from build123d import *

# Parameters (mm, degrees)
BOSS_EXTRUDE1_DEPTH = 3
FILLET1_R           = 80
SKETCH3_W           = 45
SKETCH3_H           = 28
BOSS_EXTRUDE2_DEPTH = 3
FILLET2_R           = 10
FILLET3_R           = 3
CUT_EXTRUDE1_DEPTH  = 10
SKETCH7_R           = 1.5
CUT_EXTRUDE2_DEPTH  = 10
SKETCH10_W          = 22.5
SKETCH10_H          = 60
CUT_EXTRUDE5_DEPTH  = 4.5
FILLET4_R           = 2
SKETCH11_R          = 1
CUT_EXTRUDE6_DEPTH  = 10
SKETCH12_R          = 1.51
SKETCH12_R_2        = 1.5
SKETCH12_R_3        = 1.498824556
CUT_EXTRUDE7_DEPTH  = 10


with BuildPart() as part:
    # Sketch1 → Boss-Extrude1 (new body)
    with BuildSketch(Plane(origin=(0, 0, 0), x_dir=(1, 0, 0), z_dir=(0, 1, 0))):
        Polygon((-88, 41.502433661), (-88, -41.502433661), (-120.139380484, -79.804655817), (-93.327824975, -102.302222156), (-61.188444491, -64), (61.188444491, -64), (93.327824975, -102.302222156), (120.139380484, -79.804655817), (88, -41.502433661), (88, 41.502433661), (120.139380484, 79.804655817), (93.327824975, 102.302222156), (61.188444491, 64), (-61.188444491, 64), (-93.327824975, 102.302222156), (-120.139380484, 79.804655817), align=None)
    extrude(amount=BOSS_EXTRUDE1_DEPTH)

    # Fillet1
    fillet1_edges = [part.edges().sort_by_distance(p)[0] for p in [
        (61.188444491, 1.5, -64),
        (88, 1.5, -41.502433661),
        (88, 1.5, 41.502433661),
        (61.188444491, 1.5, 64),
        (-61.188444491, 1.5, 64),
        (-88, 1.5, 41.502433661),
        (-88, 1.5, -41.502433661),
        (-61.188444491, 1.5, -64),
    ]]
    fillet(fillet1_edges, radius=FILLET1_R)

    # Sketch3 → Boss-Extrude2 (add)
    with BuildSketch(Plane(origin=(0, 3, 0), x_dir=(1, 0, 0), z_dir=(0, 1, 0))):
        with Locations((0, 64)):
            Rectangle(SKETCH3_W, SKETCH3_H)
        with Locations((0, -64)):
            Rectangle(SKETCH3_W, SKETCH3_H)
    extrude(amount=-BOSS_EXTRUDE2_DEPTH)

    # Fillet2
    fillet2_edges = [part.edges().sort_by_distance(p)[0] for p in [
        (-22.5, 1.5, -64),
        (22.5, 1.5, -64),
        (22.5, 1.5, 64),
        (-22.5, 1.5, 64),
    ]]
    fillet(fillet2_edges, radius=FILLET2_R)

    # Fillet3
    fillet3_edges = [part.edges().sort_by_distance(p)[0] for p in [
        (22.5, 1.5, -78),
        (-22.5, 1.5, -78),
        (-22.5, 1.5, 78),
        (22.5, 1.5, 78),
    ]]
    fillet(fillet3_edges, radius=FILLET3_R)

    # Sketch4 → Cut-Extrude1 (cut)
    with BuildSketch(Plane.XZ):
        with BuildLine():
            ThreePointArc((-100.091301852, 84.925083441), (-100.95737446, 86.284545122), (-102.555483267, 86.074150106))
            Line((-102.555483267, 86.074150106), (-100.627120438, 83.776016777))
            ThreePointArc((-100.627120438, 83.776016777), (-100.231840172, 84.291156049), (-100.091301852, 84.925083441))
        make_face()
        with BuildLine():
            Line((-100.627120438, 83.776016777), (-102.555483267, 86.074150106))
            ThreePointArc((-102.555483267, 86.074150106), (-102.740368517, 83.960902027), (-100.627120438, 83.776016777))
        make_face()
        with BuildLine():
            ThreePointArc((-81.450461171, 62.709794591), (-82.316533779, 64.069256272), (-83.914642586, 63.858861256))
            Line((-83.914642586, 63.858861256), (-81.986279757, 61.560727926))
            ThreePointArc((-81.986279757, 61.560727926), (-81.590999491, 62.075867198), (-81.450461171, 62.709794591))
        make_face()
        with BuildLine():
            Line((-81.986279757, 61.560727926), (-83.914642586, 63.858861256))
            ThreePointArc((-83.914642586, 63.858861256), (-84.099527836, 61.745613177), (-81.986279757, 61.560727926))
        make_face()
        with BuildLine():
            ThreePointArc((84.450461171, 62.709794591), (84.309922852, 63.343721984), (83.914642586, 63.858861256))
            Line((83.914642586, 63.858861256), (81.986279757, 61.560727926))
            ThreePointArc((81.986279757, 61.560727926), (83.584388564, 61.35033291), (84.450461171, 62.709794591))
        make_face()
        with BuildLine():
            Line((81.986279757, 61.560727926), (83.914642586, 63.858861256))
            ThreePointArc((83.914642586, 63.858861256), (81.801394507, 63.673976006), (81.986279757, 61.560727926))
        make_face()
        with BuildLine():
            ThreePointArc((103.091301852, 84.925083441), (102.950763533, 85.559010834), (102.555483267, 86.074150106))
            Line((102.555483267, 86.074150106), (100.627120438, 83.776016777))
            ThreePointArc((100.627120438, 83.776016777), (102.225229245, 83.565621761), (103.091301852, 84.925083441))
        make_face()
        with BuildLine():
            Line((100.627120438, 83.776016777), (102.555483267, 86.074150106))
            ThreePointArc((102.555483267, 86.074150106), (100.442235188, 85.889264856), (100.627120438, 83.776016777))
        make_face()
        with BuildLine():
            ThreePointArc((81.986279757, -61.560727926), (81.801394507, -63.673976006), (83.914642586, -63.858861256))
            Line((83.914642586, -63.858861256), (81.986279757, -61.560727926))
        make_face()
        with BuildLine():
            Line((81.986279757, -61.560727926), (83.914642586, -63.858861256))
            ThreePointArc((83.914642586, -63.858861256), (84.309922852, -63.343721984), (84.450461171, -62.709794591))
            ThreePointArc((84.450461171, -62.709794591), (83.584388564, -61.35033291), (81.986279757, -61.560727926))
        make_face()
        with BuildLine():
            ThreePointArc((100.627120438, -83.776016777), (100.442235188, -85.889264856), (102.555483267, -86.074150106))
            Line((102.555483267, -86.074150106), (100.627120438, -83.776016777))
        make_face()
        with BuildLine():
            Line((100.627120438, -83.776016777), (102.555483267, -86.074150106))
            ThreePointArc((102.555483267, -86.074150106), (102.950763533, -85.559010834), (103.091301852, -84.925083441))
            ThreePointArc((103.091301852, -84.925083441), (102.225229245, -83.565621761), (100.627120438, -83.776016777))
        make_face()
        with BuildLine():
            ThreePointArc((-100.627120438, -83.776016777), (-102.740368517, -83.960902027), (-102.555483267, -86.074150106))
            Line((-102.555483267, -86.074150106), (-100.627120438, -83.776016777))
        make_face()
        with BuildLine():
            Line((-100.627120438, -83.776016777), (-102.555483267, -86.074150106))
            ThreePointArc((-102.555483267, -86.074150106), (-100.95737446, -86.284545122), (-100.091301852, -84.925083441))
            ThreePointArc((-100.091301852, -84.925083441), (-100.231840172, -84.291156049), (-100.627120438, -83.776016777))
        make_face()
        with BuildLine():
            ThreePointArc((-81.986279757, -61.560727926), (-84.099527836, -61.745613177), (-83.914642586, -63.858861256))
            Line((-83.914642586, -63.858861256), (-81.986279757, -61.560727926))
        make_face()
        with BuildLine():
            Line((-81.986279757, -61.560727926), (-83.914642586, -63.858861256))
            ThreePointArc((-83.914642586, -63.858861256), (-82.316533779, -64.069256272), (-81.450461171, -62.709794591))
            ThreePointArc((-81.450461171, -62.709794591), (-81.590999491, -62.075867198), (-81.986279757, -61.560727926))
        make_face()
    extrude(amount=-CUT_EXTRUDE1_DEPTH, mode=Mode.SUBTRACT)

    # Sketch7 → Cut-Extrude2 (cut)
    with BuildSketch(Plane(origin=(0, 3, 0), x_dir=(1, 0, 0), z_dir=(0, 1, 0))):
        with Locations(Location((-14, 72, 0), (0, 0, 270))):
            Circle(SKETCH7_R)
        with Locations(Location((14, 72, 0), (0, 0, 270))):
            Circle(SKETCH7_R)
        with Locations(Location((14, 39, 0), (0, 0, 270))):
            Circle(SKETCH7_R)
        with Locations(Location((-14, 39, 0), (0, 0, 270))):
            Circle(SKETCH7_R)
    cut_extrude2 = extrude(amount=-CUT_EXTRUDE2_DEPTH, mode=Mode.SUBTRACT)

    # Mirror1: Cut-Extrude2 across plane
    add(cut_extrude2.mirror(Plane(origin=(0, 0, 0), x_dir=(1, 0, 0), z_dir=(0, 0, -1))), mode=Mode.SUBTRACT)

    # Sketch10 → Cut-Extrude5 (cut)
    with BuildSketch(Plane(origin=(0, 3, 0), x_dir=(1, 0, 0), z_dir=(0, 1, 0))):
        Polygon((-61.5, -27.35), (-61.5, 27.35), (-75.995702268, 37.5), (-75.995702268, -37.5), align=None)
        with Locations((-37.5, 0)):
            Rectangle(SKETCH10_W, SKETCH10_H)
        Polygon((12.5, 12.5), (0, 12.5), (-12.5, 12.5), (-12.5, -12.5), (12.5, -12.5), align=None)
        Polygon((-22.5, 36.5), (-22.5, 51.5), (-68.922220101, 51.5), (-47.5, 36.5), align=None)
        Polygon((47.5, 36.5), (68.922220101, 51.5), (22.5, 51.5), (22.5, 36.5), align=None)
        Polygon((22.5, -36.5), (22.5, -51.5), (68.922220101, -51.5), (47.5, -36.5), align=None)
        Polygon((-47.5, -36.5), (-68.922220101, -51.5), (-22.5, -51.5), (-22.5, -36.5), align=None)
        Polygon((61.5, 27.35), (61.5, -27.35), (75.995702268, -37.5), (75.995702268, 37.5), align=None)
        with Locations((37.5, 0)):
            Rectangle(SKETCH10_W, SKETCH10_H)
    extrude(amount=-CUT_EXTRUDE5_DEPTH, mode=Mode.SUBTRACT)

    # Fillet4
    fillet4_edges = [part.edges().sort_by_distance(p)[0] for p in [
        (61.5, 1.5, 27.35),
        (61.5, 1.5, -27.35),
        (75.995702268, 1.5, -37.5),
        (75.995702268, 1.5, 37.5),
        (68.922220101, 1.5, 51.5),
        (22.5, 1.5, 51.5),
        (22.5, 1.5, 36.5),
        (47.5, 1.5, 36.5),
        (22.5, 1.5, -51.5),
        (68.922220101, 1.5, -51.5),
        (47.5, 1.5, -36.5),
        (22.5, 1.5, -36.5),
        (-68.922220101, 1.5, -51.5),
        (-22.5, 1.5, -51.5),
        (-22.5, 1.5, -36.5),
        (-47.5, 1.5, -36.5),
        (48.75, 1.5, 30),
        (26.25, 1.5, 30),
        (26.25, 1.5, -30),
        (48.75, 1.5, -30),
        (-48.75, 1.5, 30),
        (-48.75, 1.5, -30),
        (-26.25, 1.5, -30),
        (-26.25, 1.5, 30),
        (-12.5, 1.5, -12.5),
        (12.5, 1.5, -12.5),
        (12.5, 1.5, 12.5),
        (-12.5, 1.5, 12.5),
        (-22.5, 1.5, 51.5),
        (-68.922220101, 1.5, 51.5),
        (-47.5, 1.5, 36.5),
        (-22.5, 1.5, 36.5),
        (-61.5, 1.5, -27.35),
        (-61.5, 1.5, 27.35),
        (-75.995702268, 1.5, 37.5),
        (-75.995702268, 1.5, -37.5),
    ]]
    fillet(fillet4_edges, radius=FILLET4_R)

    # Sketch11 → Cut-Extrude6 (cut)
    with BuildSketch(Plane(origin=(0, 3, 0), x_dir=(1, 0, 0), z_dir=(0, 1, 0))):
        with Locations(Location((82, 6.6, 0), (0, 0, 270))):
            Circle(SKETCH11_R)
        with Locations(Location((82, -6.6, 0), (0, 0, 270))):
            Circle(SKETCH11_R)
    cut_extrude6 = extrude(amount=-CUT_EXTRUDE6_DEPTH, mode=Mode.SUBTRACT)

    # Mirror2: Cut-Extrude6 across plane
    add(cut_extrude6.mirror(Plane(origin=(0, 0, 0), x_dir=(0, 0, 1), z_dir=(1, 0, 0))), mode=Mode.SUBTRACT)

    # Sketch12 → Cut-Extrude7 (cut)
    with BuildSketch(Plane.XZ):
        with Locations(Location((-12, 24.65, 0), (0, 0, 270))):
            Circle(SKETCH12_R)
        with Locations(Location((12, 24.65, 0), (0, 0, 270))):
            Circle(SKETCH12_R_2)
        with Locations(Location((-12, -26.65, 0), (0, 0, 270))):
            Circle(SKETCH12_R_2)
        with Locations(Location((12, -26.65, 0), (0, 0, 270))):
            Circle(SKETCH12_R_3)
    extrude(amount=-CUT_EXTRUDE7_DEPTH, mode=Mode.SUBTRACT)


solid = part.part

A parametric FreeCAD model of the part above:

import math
import FreeCAD as App
import Part
import Sketcher
from FreeCAD import Vector
Q = App.Units.Quantity


def edges_at(feature, points):
    """Names of the edges that pass closest to the given points."""
    edges = feature.Shape.Edges
    near = lambda p: min(range(len(edges)), key=lambda i: edges[i].distToShape(Part.Vertex(*p))[0])
    return sorted({f"Edge{near(p) + 1}" for p in points})


def add_polygon(sketch, points):
    """Adds a closed chain of lines whose ends are joined by coincident constraints."""
    first, n = sketch.GeometryCount, len(points)
    for a, b in zip(points, points[1:] + points[:1]):
        sketch.addGeometry(Part.LineSegment(App.Vector(*a, 0), App.Vector(*b, 0)), False)
    for i in range(n):
        sketch.addConstraint(Sketcher.Constraint("Coincident", first + i, 2, first + (i + 1) % n, 1))

doc = App.newDocument("Part")
body = doc.addObject("PartDesign::Body", "Body")

# Sketch on XZ plane
sketch1 = doc.addObject("Sketcher::SketchObject", "Sketch")
body.addObject(sketch1)
sketch1.AttachmentSupport = (doc.XZ_Plane, [""])
sketch1.MapMode = "FlatFace"
add_polygon(sketch1, [(-88, -42), (-88, 42), (-120, 80), (-93, 102), (-61, 64), (61, 64), (93, 102), (120, 80), (88, 42), (88, -42), (120, -80), (93, -102), (61, -64), (-61, -64), (-93, -102), (-120, -80)])  # lines 0-15
sketch1.addConstraint(Sketcher.Constraint("Vertical", 0))
sketch1.addConstraint(Sketcher.Constraint("Horizontal", 4))
sketch1.addConstraint(Sketcher.Constraint("Vertical", 8))
sketch1.addConstraint(Sketcher.Constraint("Horizontal", 12))
sketch1.addConstraint(Sketcher.Constraint("Symmetric", 0, 2, 8, 2, -1, 1))
sketch1.addConstraint(Sketcher.Constraint("Symmetric", 1, 2, 9, 2, -1, 1))
sketch1.addConstraint(Sketcher.Constraint("Symmetric", 2, 2, 10, 2, -1, 1))
sketch1.addConstraint(Sketcher.Constraint("Symmetric", 3, 2, 11, 2, -1, 1))
sketch1.addConstraint(Sketcher.Constraint("Symmetric", 5, 2, 13, 2, -1, 1))
sketch1.addConstraint(Sketcher.Constraint("Symmetric", 6, 2, 14, 2, -1, 1))
sketch1.addConstraint(Sketcher.Constraint("Symmetric", 2, 2, 5, 2, -2))
sketch1.addConstraint(Sketcher.Constraint("Symmetric", 1, 2, 6, 2, -2))
sketch1.addConstraint(Sketcher.Constraint("Perpendicular", 1, 2))
sketch1.addConstraint(Sketcher.Constraint("Perpendicular", 2, 3))
sketch1.addConstraint(Sketcher.Constraint("Perpendicular", 5, 6))
sketch1.addConstraint(Sketcher.Constraint("Perpendicular", 6, 7))
sketch1.addConstraint(Sketcher.Constraint("Parallel", 7, 13))
sketch1.addConstraint(Sketcher.Constraint("Perpendicular", 14, 15))
sketch1.addConstraint(Sketcher.Constraint("Equal", 1, 3))
sketch1.addConstraint(Sketcher.Constraint("Angle", 1, Q("130 deg")))
sketch1.addConstraint(Sketcher.Constraint("Distance", 1, 50.0))
sketch1.addConstraint(Sketcher.Constraint("Distance", 2, 35.0))
sketch1.addConstraint(Sketcher.Constraint("DistanceX", 0, 2, -1, 1, 88.0))
sketch1.addConstraint(Sketcher.Constraint("DistanceY", -1, 1, 3, 2, 64.0))
pad1 = doc.addObject("PartDesign::Pad", "Pad")
body.addObject(pad1)
pad1.Profile = sketch1
pad1.Length = 3
pad1.Reversed = True
doc.recompute()

fillet = doc.addObject("PartDesign::Fillet", "Fillet")
body.addObject(fillet)
fillet.Base = (pad1, edges_at(pad1, [
    (61.188, 1.5, -64),
    (88, 1.5, -41.502),
    (88, 1.5, 41.502),
    (61.188, 1.5, 64),
    (-61.188, 1.5, 64),
    (-88, 1.5, 41.502),
    (-88, 1.5, -41.502),
    (-61.188, 1.5, -64),
]))
fillet.Radius = 80

# Sketch on XZ plane
sketch2 = doc.addObject("Sketcher::SketchObject", "Sketch001")
body.addObject(sketch2)
sketch2.AttachmentSupport = (doc.XZ_Plane, [""])
sketch2.MapMode = "FlatFace"
sketch2.AttachmentOffset = App.Placement(Vector(0, 0, -3), App.Rotation())
add_polygon(sketch2, [(-22, -78), (-22, -50), (22, -50), (22, -78)])  # lines 0-3
add_polygon(sketch2, [(-22, 50), (-22, 78), (22, 78), (22, 50)])  # lines 4-7
sketch2.addConstraint(Sketcher.Constraint("Vertical", 0))
sketch2.addConstraint(Sketcher.Constraint("Horizontal", 1))
sketch2.addConstraint(Sketcher.Constraint("Vertical", 2))
sketch2.addConstraint(Sketcher.Constraint("Horizontal", 3))
sketch2.addConstraint(Sketcher.Constraint("Vertical", 4))
sketch2.addConstraint(Sketcher.Constraint("Horizontal", 5))
sketch2.addConstraint(Sketcher.Constraint("Vertical", 6))
sketch2.addConstraint(Sketcher.Constraint("Horizontal", 7))
sketch2.addConstraint(Sketcher.Constraint("Symmetric", 2, 2, 4, 2, -1, 1))
sketch2.addConstraint(Sketcher.Constraint("Symmetric", 0, 2, 6, 2, -1, 1))
sketch2.addConstraint(Sketcher.Constraint("Vertical", 3, 2, 4, 2))
sketch2.addConstraint(Sketcher.Constraint("DistanceX", 1, 1, 1, 2, 45.0))
sketch2.addConstraint(Sketcher.Constraint("DistanceY", 0, 1, 0, 2, 28.0))
sketch2.addConstraint(Sketcher.Constraint("DistanceY", 0, 2, -1, 1, 50.0))
pad2 = doc.addObject("PartDesign::Pad", "Pad001")
body.addObject(pad2)
pad2.Profile = sketch2
pad2.Length = 3
doc.recompute()

fillet2 = doc.addObject("PartDesign::Fillet", "Fillet001")
body.addObject(fillet2)
fillet2.Base = (pad2, edges_at(pad2, [
    (-22.5, 1.5, -64),
    (22.5, 1.5, -64),
    (22.5, 1.5, 64),
    (-22.5, 1.5, 64),
]))
fillet2.Radius = 10
doc.recompute()

fillet3 = doc.addObject("PartDesign::Fillet", "Fillet002")
body.addObject(fillet3)
fillet3.Base = (fillet2, edges_at(fillet2, [
    (22.5, 1.5, -78),
    (-22.5, 1.5, -78),
    (-22.5, 1.5, 78),
    (22.5, 1.5, 78),
]))
fillet3.Radius = 3

# Sketch on XZ plane
sketch3 = doc.addObject("Sketcher::SketchObject", "Sketch002")
body.addObject(sketch3)
sketch3.AttachmentSupport = (doc.XZ_Plane, [""])
sketch3.MapMode = "FlatFace"
sketch3.addGeometry(Part.ArcOfCircle(Part.Circle(Vector(-101.6, 84.9, 0), Vector(0, 0, 1), 1.5), math.radians(0), math.radians(130)), False)
sketch3.addGeometry(Part.ArcOfCircle(Part.Circle(Vector(-101.6, 84.9, 0), Vector(0, 0, 1), 1.5), math.radians(130), math.radians(310)), False)
sketch3.addGeometry(Part.ArcOfCircle(Part.Circle(Vector(-101.6, 84.9, 0), Vector(0, 0, 1), 1.5), math.radians(-50), math.radians(0)), False)
sketch3.addGeometry(Part.ArcOfCircle(Part.Circle(Vector(-83, 62.7, 0), Vector(0, 0, 1), 1.5), math.radians(0), math.radians(130)), False)
sketch3.addGeometry(Part.ArcOfCircle(Part.Circle(Vector(-83, 62.7, 0), Vector(0, 0, 1), 1.5), math.radians(130), math.radians(310)), False)
sketch3.addGeometry(Part.ArcOfCircle(Part.Circle(Vector(-83, 62.7, 0), Vector(0, 0, 1), 1.5), math.radians(-50), math.radians(0)), False)
sketch3.addGeometry(Part.ArcOfCircle(Part.Circle(Vector(83, 62.7, 0), Vector(0, 0, 1), 1.5), math.radians(0), math.radians(50)), False)
sketch3.addGeometry(Part.ArcOfCircle(Part.Circle(Vector(83, 62.7, 0), Vector(0, 0, 1), 1.5), math.radians(50), math.radians(230)), False)
sketch3.addGeometry(Part.ArcOfCircle(Part.Circle(Vector(83, 62.7, 0), Vector(0, 0, 1), 1.5), math.radians(-130), math.radians(0)), False)
sketch3.addGeometry(Part.ArcOfCircle(Part.Circle(Vector(101.6, 84.9, 0), Vector(0, 0, 1), 1.5), math.radians(0), math.radians(50)), False)
sketch3.addGeometry(Part.ArcOfCircle(Part.Circle(Vector(101.6, 84.9, 0), Vector(0, 0, 1), 1.5), math.radians(50), math.radians(230)), False)
sketch3.addGeometry(Part.ArcOfCircle(Part.Circle(Vector(101.6, 84.9, 0), Vector(0, 0, 1), 1.5), math.radians(-130), math.radians(0)), False)
sketch3.addGeometry(Part.ArcOfCircle(Part.Circle(Vector(83, -62.7, 0), Vector(0, 0, 1), 1.5), math.radians(130), math.radians(310)), False)
sketch3.addGeometry(Part.ArcOfCircle(Part.Circle(Vector(83, -62.7, 0), Vector(0, 0, 1), 1.5), math.radians(-50), math.radians(0)), False)
sketch3.addGeometry(Part.ArcOfCircle(Part.Circle(Vector(83, -62.7, 0), Vector(0, 0, 1), 1.5), math.radians(0), math.radians(130)), False)
sketch3.addGeometry(Part.ArcOfCircle(Part.Circle(Vector(101.6, -84.9, 0), Vector(0, 0, 1), 1.5), math.radians(130), math.radians(310)), False)
sketch3.addGeometry(Part.ArcOfCircle(Part.Circle(Vector(101.6, -84.9, 0), Vector(0, 0, 1), 1.5), math.radians(-50), math.radians(0)), False)
sketch3.addGeometry(Part.ArcOfCircle(Part.Circle(Vector(101.6, -84.9, 0), Vector(0, 0, 1), 1.5), math.radians(0), math.radians(130)), False)
sketch3.addGeometry(Part.ArcOfCircle(Part.Circle(Vector(-101.6, -84.9, 0), Vector(0, 0, 1), 1.5), math.radians(50), math.radians(230)), False)
sketch3.addGeometry(Part.ArcOfCircle(Part.Circle(Vector(-101.6, -84.9, 0), Vector(0, 0, 1), 1.5), math.radians(-130), math.radians(0)), False)
sketch3.addGeometry(Part.ArcOfCircle(Part.Circle(Vector(-101.6, -84.9, 0), Vector(0, 0, 1), 1.5), math.radians(0), math.radians(50)), False)
sketch3.addGeometry(Part.ArcOfCircle(Part.Circle(Vector(-83, -62.7, 0), Vector(0, 0, 1), 1.5), math.radians(50), math.radians(230)), False)
sketch3.addGeometry(Part.ArcOfCircle(Part.Circle(Vector(-83, -62.7, 0), Vector(0, 0, 1), 1.5), math.radians(-130), math.radians(0)), False)
sketch3.addGeometry(Part.ArcOfCircle(Part.Circle(Vector(-83, -62.7, 0), Vector(0, 0, 1), 1.5), math.radians(0), math.radians(50)), False)
sketch3.addConstraint(Sketcher.Constraint("Tangent", 0, 2, 1, 1))
sketch3.addConstraint(Sketcher.Constraint("Tangent", 1, 2, 2, 1))
sketch3.addConstraint(Sketcher.Constraint("Tangent", 2, 2, 0, 1))
sketch3.addConstraint(Sketcher.Constraint("Tangent", 3, 2, 4, 1))
sketch3.addConstraint(Sketcher.Constraint("Tangent", 4, 2, 5, 1))
sketch3.addConstraint(Sketcher.Constraint("Tangent", 5, 2, 3, 1))
sketch3.addConstraint(Sketcher.Constraint("Tangent", 6, 2, 7, 1))
sketch3.addConstraint(Sketcher.Constraint("Tangent", 7, 2, 8, 1))
sketch3.addConstraint(Sketcher.Constraint("Tangent", 8, 2, 6, 1))
sketch3.addConstraint(Sketcher.Constraint("Tangent", 9, 2, 10, 1))
sketch3.addConstraint(Sketcher.Constraint("Tangent", 10, 2, 11, 1))
sketch3.addConstraint(Sketcher.Constraint("Tangent", 11, 2, 9, 1))
sketch3.addConstraint(Sketcher.Constraint("Tangent", 12, 2, 13, 1))
sketch3.addConstraint(Sketcher.Constraint("Tangent", 13, 2, 14, 1))
sketch3.addConstraint(Sketcher.Constraint("Tangent", 14, 2, 12, 1))
sketch3.addConstraint(Sketcher.Constraint("Tangent", 15, 2, 16, 1))
sketch3.addConstraint(Sketcher.Constraint("Tangent", 16, 2, 17, 1))
sketch3.addConstraint(Sketcher.Constraint("Tangent", 17, 2, 15, 1))
sketch3.addConstraint(Sketcher.Constraint("Tangent", 18, 2, 19, 1))
sketch3.addConstraint(Sketcher.Constraint("Tangent", 19, 2, 20, 1))
sketch3.addConstraint(Sketcher.Constraint("Tangent", 20, 2, 18, 1))
sketch3.addConstraint(Sketcher.Constraint("Tangent", 21, 2, 22, 1))
sketch3.addConstraint(Sketcher.Constraint("Tangent", 22, 2, 23, 1))
sketch3.addConstraint(Sketcher.Constraint("Tangent", 23, 2, 21, 1))
sketch3.addConstraint(Sketcher.Constraint("Equal", 2, 3))
sketch3.addConstraint(Sketcher.Constraint("Equal", 5, 6))
sketch3.addConstraint(Sketcher.Constraint("Equal", 8, 9))
sketch3.addConstraint(Sketcher.Constraint("Equal", 11, 12))
sketch3.addConstraint(Sketcher.Constraint("Equal", 14, 15))
sketch3.addConstraint(Sketcher.Constraint("Equal", 17, 18))
sketch3.addConstraint(Sketcher.Constraint("Equal", 20, 21))
sketch3.addConstraint(Sketcher.Constraint("Symmetric", 3, 3, 12, 3, -1, 1))
sketch3.addConstraint(Sketcher.Constraint("Symmetric", 0, 3, 15, 3, -1, 1))
sketch3.addConstraint(Sketcher.Constraint("Symmetric", 9, 3, 18, 3, -1, 1))
sketch3.addConstraint(Sketcher.Constraint("Symmetric", 6, 3, 21, 3, -1, 1))
sketch3.addConstraint(Sketcher.Constraint("Symmetric", 3, 3, 6, 3, -2))
sketch3.addConstraint(Sketcher.Constraint("Symmetric", 0, 3, 9, 3, -2))
sketch3.addConstraint(Sketcher.Constraint("Horizontal", 11, 3, 2, 2))
sketch3.addConstraint(Sketcher.Constraint("Horizontal", 8, 3, 5, 2))
sketch3.addConstraint(Sketcher.Constraint("Horizontal", 3, 2, 6, 2))
sketch3.addConstraint(Sketcher.Constraint("Horizontal", 4, 2, 7, 2))
sketch3.addConstraint(Sketcher.Constraint("Horizontal", 5, 2, 8, 2))
sketch3.addConstraint(Sketcher.Constraint("Horizontal", 0, 2, 9, 2))
sketch3.addConstraint(Sketcher.Constraint("Horizontal", 1, 2, 10, 2))
sketch3.addConstraint(Sketcher.Constraint("Horizontal", 2, 2, 11, 2))
sketch3.addConstraint(Sketcher.Constraint("Horizontal", 23, 3, 13, 2))
sketch3.addConstraint(Sketcher.Constraint("Horizontal", 20, 3, 16, 2))
sketch3.addConstraint(Sketcher.Constraint("Horizontal", 15, 2, 18, 2))
sketch3.addConstraint(Sketcher.Constraint("Horizontal", 16, 2, 19, 2))
sketch3.addConstraint(Sketcher.Constraint("Horizontal", 17, 2, 20, 2))
sketch3.addConstraint(Sketcher.Constraint("Horizontal", 12, 2, 21, 2))
sketch3.addConstraint(Sketcher.Constraint("Horizontal", 13, 2, 22, 2))
sketch3.addConstraint(Sketcher.Constraint("Horizontal", 14, 2, 23, 2))
sketch3.addConstraint(Sketcher.Constraint("Vertical", 6, 2, 12, 2))
sketch3.addConstraint(Sketcher.Constraint("Vertical", 7, 2, 14, 2))
sketch3.addConstraint(Sketcher.Constraint("Vertical", 9, 2, 15, 2))
sketch3.addConstraint(Sketcher.Constraint("Vertical", 10, 2, 17, 2))
sketch3.addConstraint(Sketcher.Constraint("Radius", 0, 1.5))
sketch3.addConstraint(Sketcher.Constraint("DistanceX", 0, 3, -1, 1, 101.591302))
sketch3.addConstraint(Sketcher.Constraint("DistanceX", 3, 3, -1, 1, 82.950461))
sketch3.addConstraint(Sketcher.Constraint("DistanceY", -1, 1, 0, 2, 86.07415))
sketch3.addConstraint(Sketcher.Constraint("DistanceX", 1, 2, -1, 1, 100.62712))
sketch3.addConstraint(Sketcher.Constraint("DistanceY", -1, 1, 3, 2, 63.858861))
sketch3.addConstraint(Sketcher.Constraint("DistanceX", 4, 2, -1, 1, 81.98628))
sketch3.addConstraint(Sketcher.Constraint("DistanceY", 3, 3, 0, 3, 22.215289))
sketch3.addConstraint(Sketcher.Constraint("DistanceY", 12, 3, 8, 3, 125.419589))
pocket1 = doc.addObject("PartDesign::Pocket", "Pocket")
body.addObject(pocket1)
pocket1.Profile = sketch3
pocket1.Length = 10

# Sketch on XZ plane
sketch4 = doc.addObject("Sketcher::SketchObject", "Sketch003")
body.addObject(sketch4)
sketch4.AttachmentSupport = (doc.XZ_Plane, [""])
sketch4.MapMode = "FlatFace"
sketch4.AttachmentOffset = App.Placement(Vector(0, 0, -3), App.Rotation())
sketch4.addGeometry(Part.Circle(Vector(-14, -72, 0), Vector(0, 0, 1), 1.5), False)
sketch4.addGeometry(Part.Circle(Vector(14, -72, 0), Vector(0, 0, 1), 1.5), False)
sketch4.addGeometry(Part.Circle(Vector(14, -39, 0), Vector(0, 0, 1), 1.5), False)
sketch4.addGeometry(Part.Circle(Vector(-14, -39, 0), Vector(0, 0, 1), 1.5), False)
sketch4.addConstraint(Sketcher.Constraint("Equal", 0, 1))
sketch4.addConstraint(Sketcher.Constraint("Equal", 1, 2))
sketch4.addConstraint(Sketcher.Constraint("Equal", 2, 3))
sketch4.addConstraint(Sketcher.Constraint("Symmetric", 0, 3, 1, 3, -2))
sketch4.addConstraint(Sketcher.Constraint("Symmetric", 2, 3, 3, 3, -2))
sketch4.addConstraint(Sketcher.Constraint("Vertical", 1, 3, 2, 3))
sketch4.addConstraint(Sketcher.Constraint("Diameter", 0, 3.0))
sketch4.addConstraint(Sketcher.Constraint("DistanceX", 0, 3, -1, 1, 14.0))
sketch4.addConstraint(Sketcher.Constraint("DistanceY", 0, 3, -1, 1, 72.0))
sketch4.addConstraint(Sketcher.Constraint("DistanceY", 2, 3, -1, 1, 39.0))
pocket2 = doc.addObject("PartDesign::Pocket", "Pocket001")
body.addObject(pocket2)
pocket2.Profile = sketch4
pocket2.Length = 10
pocket2.Reversed = True
doc.recompute()

mirrored = doc.addObject("PartDesign::Mirrored", "Mirrored")
body.addObject(mirrored)
mirrored.Originals = [pocket2]
mirrored.MirrorPlane = (doc.XY_Plane, [""])
body.Tip = mirrored

# Sketch on XZ plane
sketch5 = doc.addObject("Sketcher::SketchObject", "Sketch004")
body.addObject(sketch5)
sketch5.AttachmentSupport = (doc.XZ_Plane, [""])
sketch5.MapMode = "FlatFace"
sketch5.AttachmentOffset = App.Placement(Vector(0, 0, -3), App.Rotation())
add_polygon(sketch5, [(-62, 27), (-62, -27), (-76, -38), (-76, 38)])  # lines 0-3
add_polygon(sketch5, [(-49, -30), (-49, 30), (-26, 30), (-26, -30)])  # lines 4-7
add_polygon(sketch5, [(12, -12), (-12, -12), (-12, 12), (12, 12)])  # lines 8-11
add_polygon(sketch5, [(-22, -36), (-22, -52), (-69, -52), (-48, -36)])  # lines 12-15
add_polygon(sketch5, [(48, -36), (69, -52), (22, -52), (22, -36)])  # lines 16-19
add_polygon(sketch5, [(22, 36), (22, 52), (69, 52), (48, 36)])  # lines 20-23
add_polygon(sketch5, [(-48, 36), (-69, 52), (-22, 52), (-22, 36)])  # lines 24-27
add_polygon(sketch5, [(62, -27), (62, 27), (76, 38), (76, -38)])  # lines 28-31
add_polygon(sketch5, [(26, -30), (26, 30), (49, 30), (49, -30)])  # lines 32-35
sketch5.addConstraint(Sketcher.Constraint("Vertical", 0))
sketch5.addConstraint(Sketcher.Constraint("Vertical", 2))
sketch5.addConstraint(Sketcher.Constraint("Vertical", 4))
sketch5.addConstraint(Sketcher.Constraint("Horizontal", 5))
sketch5.addConstraint(Sketcher.Constraint("Vertical", 6))
sketch5.addConstraint(Sketcher.Constraint("Horizontal", 7))
sketch5.addConstraint(Sketcher.Constraint("Horizontal", 8))
sketch5.addConstraint(Sketcher.Constraint("Vertical", 9))
sketch5.addConstraint(Sketcher.Constraint("Horizontal", 10))
sketch5.addConstraint(Sketcher.Constraint("Vertical", 11))
sketch5.addConstraint(Sketcher.Constraint("Vertical", 12))
sketch5.addConstraint(Sketcher.Constraint("Horizontal", 13))
sketch5.addConstraint(Sketcher.Constraint("Horizontal", 15))
sketch5.addConstraint(Sketcher.Constraint("Horizontal", 17))
sketch5.addConstraint(Sketcher.Constraint("Vertical", 18))
sketch5.addConstraint(Sketcher.Constraint("Horizontal", 19))
sketch5.addConstraint(Sketcher.Constraint("Vertical", 20))
sketch5.addConstraint(Sketcher.Constraint("Horizontal", 21))
sketch5.addConstraint(Sketcher.Constraint("Horizontal", 23))
sketch5.addConstraint(Sketcher.Constraint("Horizontal", 25))
sketch5.addConstraint(Sketcher.Constraint("Vertical", 26))
sketch5.addConstraint(Sketcher.Constraint("Horizontal", 27))
sketch5.addConstraint(Sketcher.Constraint("Vertical", 28))
sketch5.addConstraint(Sketcher.Constraint("Vertical", 30))
sketch5.addConstraint(Sketcher.Constraint("Vertical", 32))
sketch5.addConstraint(Sketcher.Constraint("Horizontal", 33))
sketch5.addConstraint(Sketcher.Constraint("Vertical", 34))
sketch5.addConstraint(Sketcher.Constraint("Horizontal", 35))
sketch5.addConstraint(Sketcher.Constraint("Symmetric", 8, 2, 10, 2, -1, 1))
sketch5.addConstraint(Sketcher.Constraint("Symmetric", 12, 2, 20, 2, -1, 1))
sketch5.addConstraint(Sketcher.Constraint("Symmetric", 14, 2, 22, 2, -1, 1))
sketch5.addConstraint(Sketcher.Constraint("Symmetric", 16, 2, 24, 2, -1, 1))
sketch5.addConstraint(Sketcher.Constraint("Symmetric", 18, 2, 26, 2, -1, 1))
sketch5.addConstraint(Sketcher.Constraint("Symmetric", 0, 2, 28, 2, -1, 1))
sketch5.addConstraint(Sketcher.Constraint("Symmetric", 1, 2, 29, 2, -1, 1))
sketch5.addConstraint(Sketcher.Constraint("Symmetric", 6, 2, 32, 2, -1, 1))
sketch5.addConstraint(Sketcher.Constraint("Symmetric", 4, 2, 34, 2, -1, 1))
sketch5.addConstraint(Sketcher.Constraint("Symmetric", 13, 2, 16, 2, -2))
sketch5.addConstraint(Sketcher.Constraint("Symmetric", 15, 2, 18, 2, -2))
sketch5.addConstraint(Sketcher.Constraint("Parallel", 1, 14))
sketch5.addConstraint(Sketcher.Constraint("Parallel", 3, 16))
sketch5.addConstraint(Sketcher.Constraint("Parallel", 14, 22))
sketch5.addConstraint(Sketcher.Constraint("Parallel", 16, 24))
sketch5.addConstraint(Sketcher.Constraint("Parallel", 24, 31))
sketch5.addConstraint(Sketcher.Constraint("Horizontal", 3, 2, 28, 2))
sketch5.addConstraint(Sketcher.Constraint("Horizontal", 2, 2, 29, 2))
sketch5.addConstraint(Sketcher.Constraint("Horizontal", 1, 2, 30, 2))
sketch5.addConstraint(Sketcher.Constraint("Horizontal", 5, 2, 32, 2))
sketch5.addConstraint(Sketcher.Constraint("Equal", 10, 15))
sketch5.addConstraint(Sketcher.Constraint("Equal", 27, 9))
sketch5.addConstraint(Sketcher.Constraint("DistanceX", 8, 2, 8, 1, 25.0))
sketch5.addConstraint(Sketcher.Constraint("DistanceY", 2, 1, 2, 2, 75.0))
sketch5.addConstraint(Sketcher.Constraint("DistanceY", 4, 1, 4, 2, 60.0))
sketch5.addConstraint(Sketcher.Constraint("DistanceY", 12, 2, 12, 1, 15.0))
sketch5.addConstraint(Sketcher.Constraint("Angle", 1, Q("-145 deg")))
sketch5.addConstraint(Sketcher.Constraint("DistanceX", 5, 1, 5, 2, 22.5))
sketch5.addConstraint(Sketcher.Constraint("DistanceY", 0, 2, 0, 1, 54.7))
sketch5.addConstraint(Sketcher.Constraint("DistanceX", 0, 2, 8, 2, 49.0))
sketch5.addConstraint(Sketcher.Constraint("DistanceX", 12, 2, 8, 2, 10.0))
sketch5.addConstraint(Sketcher.Constraint("DistanceY", 12, 2, 8, 2, 39.0))
sketch5.addConstraint(Sketcher.Constraint("DistanceX", 4, 2, -1, 1, 48.75))
pocket3 = doc.addObject("PartDesign::Pocket", "Pocket002")
body.addObject(pocket3)
pocket3.Profile = sketch5
pocket3.Length = 4.5
pocket3.Reversed = True
doc.recompute()

fillet4 = doc.addObject("PartDesign::Fillet", "Fillet003")
body.addObject(fillet4)
fillet4.Base = (pocket3, edges_at(pocket3, [
    (61.5, 1.5, 27.35),
    (61.5, 1.5, -27.35),
    (75.996, 1.5, -37.5),
    (75.996, 1.5, 37.5),
    (68.922, 1.5, 51.5),
    (22.5, 1.5, 51.5),
    (22.5, 1.5, 36.5),
    (47.5, 1.5, 36.5),
    (22.5, 1.5, -51.5),
    (68.922, 1.5, -51.5),
    (47.5, 1.5, -36.5),
    (22.5, 1.5, -36.5),
    (-68.922, 1.5, -51.5),
    (-22.5, 1.5, -51.5),
    (-22.5, 1.5, -36.5),
    (-47.5, 1.5, -36.5),
    (48.75, 1.5, 30),
    (26.25, 1.5, 30),
    (26.25, 1.5, -30),
    (48.75, 1.5, -30),
    (-48.75, 1.5, 30),
    (-48.75, 1.5, -30),
    (-26.25, 1.5, -30),
    (-26.25, 1.5, 30),
    (-12.5, 1.5, -12.5),
    (12.5, 1.5, -12.5),
    (12.5, 1.5, 12.5),
    (-12.5, 1.5, 12.5),
    (-22.5, 1.5, 51.5),
    (-68.922, 1.5, 51.5),
    (-47.5, 1.5, 36.5),
    (-22.5, 1.5, 36.5),
    (-61.5, 1.5, -27.35),
    (-61.5, 1.5, 27.35),
    (-75.996, 1.5, 37.5),
    (-75.996, 1.5, -37.5),
]))
fillet4.Radius = 2

# Sketch on XZ plane
sketch6 = doc.addObject("Sketcher::SketchObject", "Sketch005")
body.addObject(sketch6)
sketch6.AttachmentSupport = (doc.XZ_Plane, [""])
sketch6.MapMode = "FlatFace"
sketch6.AttachmentOffset = App.Placement(Vector(0, 0, -3), App.Rotation())
sketch6.addGeometry(Part.Circle(Vector(82, -6.6, 0), Vector(0, 0, 1), 1), False)
sketch6.addGeometry(Part.Circle(Vector(82, 6.6, 0), Vector(0, 0, 1), 1), False)
sketch6.addConstraint(Sketcher.Constraint("Equal", 0, 1))
sketch6.addConstraint(Sketcher.Constraint("Symmetric", 0, 3, 1, 3, -1))
sketch6.addConstraint(Sketcher.Constraint("Diameter", 0, 2.0))
sketch6.addConstraint(Sketcher.Constraint("DistanceX", -1, 1, 0, 3, 82.0))
sketch6.addConstraint(Sketcher.Constraint("DistanceY", 0, 3, -1, 1, 6.6))
pocket4 = doc.addObject("PartDesign::Pocket", "Pocket003")
body.addObject(pocket4)
pocket4.Profile = sketch6
pocket4.Length = 10
pocket4.Reversed = True
doc.recompute()

mirrored2 = doc.addObject("PartDesign::Mirrored", "Mirrored001")
body.addObject(mirrored2)
mirrored2.Originals = [pocket4]
mirrored2.MirrorPlane = (doc.YZ_Plane, [""])
body.Tip = mirrored2

# Sketch on XZ plane
sketch7 = doc.addObject("Sketcher::SketchObject", "Sketch006")
body.addObject(sketch7)
sketch7.AttachmentSupport = (doc.XZ_Plane, [""])
sketch7.MapMode = "FlatFace"
sketch7.addGeometry(Part.Circle(Vector(-12, 24.6, 0), Vector(0, 0, 1), 1.5), False)
sketch7.addGeometry(Part.Circle(Vector(12, 24.6, 0), Vector(0, 0, 1), 1.5), False)
sketch7.addGeometry(Part.Circle(Vector(-12, -26.6, 0), Vector(0, 0, 1), 1.5), False)
sketch7.addGeometry(Part.Circle(Vector(12, -26.6, 0), Vector(0, 0, 1), 1.5), False)
sketch7.addConstraint(Sketcher.Constraint("Equal", 1, 2))
sketch7.addConstraint(Sketcher.Constraint("Symmetric", 0, 3, 1, 3, -2))
sketch7.addConstraint(Sketcher.Constraint("Symmetric", 2, 3, 3, 3, -2))
sketch7.addConstraint(Sketcher.Constraint("Vertical", 0, 3, 2, 3))
sketch7.addConstraint(Sketcher.Constraint("Diameter", 1, 3.0))
sketch7.addConstraint(Sketcher.Constraint("Diameter", 0, 3.02))
sketch7.addConstraint(Sketcher.Constraint("DistanceX", 0, 3, -1, 1, 12.0))
sketch7.addConstraint(Sketcher.Constraint("DistanceY", 2, 3, 0, 3, 51.3))
sketch7.addConstraint(Sketcher.Constraint("Diameter", 3, 2.997649))
sketch7.addConstraint(Sketcher.Constraint("DistanceY", -1, 1, 0, 3, 24.65))
pocket5 = doc.addObject("PartDesign::Pocket", "Pocket004")
body.addObject(pocket5)
pocket5.Profile = sketch7
pocket5.Length = 10

doc.recompute()
